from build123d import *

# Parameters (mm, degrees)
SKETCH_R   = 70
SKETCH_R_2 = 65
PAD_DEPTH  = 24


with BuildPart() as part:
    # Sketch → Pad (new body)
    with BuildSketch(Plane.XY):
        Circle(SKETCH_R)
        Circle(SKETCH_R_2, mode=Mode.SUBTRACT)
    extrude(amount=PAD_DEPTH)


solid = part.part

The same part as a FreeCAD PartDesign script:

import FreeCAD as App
import Part
import Sketcher

doc = App.newDocument("Part")
params = doc.addObject("Spreadsheet::Sheet", "Params")
for row, (alias, value) in enumerate([
    ("sketch1_diameter", "140 mm"),
    ("sketch1_diameter2", "130 mm"),
    ("pad1_length", "24 mm"),
], start=1):
    params.set(f"A{row}", alias)
    params.set(f"B{row}", "=" + value)
    params.setAlias(f"B{row}", alias)

body = doc.addObject("PartDesign::Body", "Body")

# Sketch on XY plane
sketch1 = body.newObject("Sketcher::SketchObject", "Sketch")
sketch1.AttachmentSupport = (doc.getObject("XY_Plane"), [""])
sketch1.MapMode = "FlatFace"
sketch1.addGeometry(Part.Circle(App.Vector(0, 0, 0), App.Vector(0, 0, 1), 70), False)
sketch1.addGeometry(Part.Circle(App.Vector(0, 0, 0), App.Vector(0, 0, 1), 65), False)
sketch1.addConstraint(Sketcher.Constraint("Coincident", 0, 3, -1, 1))
sketch1.addConstraint(Sketcher.Constraint("Coincident", 1, 3, -1, 1))
sketch1.addConstraint(Sketcher.Constraint("Diameter", 0, 140.0))
sketch1.addConstraint(Sketcher.Constraint("Diameter", 1, 130.0))
sketch1.setExpression("Constraints[2]", "Params.sketch1_diameter")
sketch1.setExpression("Constraints[3]", "Params.sketch1_diameter2")
pad1 = body.newObject("PartDesign::Pad", "Pad")
pad1.Profile = sketch1
pad1.setExpression("Length", "Params.pad1_length")

doc.recompute()
